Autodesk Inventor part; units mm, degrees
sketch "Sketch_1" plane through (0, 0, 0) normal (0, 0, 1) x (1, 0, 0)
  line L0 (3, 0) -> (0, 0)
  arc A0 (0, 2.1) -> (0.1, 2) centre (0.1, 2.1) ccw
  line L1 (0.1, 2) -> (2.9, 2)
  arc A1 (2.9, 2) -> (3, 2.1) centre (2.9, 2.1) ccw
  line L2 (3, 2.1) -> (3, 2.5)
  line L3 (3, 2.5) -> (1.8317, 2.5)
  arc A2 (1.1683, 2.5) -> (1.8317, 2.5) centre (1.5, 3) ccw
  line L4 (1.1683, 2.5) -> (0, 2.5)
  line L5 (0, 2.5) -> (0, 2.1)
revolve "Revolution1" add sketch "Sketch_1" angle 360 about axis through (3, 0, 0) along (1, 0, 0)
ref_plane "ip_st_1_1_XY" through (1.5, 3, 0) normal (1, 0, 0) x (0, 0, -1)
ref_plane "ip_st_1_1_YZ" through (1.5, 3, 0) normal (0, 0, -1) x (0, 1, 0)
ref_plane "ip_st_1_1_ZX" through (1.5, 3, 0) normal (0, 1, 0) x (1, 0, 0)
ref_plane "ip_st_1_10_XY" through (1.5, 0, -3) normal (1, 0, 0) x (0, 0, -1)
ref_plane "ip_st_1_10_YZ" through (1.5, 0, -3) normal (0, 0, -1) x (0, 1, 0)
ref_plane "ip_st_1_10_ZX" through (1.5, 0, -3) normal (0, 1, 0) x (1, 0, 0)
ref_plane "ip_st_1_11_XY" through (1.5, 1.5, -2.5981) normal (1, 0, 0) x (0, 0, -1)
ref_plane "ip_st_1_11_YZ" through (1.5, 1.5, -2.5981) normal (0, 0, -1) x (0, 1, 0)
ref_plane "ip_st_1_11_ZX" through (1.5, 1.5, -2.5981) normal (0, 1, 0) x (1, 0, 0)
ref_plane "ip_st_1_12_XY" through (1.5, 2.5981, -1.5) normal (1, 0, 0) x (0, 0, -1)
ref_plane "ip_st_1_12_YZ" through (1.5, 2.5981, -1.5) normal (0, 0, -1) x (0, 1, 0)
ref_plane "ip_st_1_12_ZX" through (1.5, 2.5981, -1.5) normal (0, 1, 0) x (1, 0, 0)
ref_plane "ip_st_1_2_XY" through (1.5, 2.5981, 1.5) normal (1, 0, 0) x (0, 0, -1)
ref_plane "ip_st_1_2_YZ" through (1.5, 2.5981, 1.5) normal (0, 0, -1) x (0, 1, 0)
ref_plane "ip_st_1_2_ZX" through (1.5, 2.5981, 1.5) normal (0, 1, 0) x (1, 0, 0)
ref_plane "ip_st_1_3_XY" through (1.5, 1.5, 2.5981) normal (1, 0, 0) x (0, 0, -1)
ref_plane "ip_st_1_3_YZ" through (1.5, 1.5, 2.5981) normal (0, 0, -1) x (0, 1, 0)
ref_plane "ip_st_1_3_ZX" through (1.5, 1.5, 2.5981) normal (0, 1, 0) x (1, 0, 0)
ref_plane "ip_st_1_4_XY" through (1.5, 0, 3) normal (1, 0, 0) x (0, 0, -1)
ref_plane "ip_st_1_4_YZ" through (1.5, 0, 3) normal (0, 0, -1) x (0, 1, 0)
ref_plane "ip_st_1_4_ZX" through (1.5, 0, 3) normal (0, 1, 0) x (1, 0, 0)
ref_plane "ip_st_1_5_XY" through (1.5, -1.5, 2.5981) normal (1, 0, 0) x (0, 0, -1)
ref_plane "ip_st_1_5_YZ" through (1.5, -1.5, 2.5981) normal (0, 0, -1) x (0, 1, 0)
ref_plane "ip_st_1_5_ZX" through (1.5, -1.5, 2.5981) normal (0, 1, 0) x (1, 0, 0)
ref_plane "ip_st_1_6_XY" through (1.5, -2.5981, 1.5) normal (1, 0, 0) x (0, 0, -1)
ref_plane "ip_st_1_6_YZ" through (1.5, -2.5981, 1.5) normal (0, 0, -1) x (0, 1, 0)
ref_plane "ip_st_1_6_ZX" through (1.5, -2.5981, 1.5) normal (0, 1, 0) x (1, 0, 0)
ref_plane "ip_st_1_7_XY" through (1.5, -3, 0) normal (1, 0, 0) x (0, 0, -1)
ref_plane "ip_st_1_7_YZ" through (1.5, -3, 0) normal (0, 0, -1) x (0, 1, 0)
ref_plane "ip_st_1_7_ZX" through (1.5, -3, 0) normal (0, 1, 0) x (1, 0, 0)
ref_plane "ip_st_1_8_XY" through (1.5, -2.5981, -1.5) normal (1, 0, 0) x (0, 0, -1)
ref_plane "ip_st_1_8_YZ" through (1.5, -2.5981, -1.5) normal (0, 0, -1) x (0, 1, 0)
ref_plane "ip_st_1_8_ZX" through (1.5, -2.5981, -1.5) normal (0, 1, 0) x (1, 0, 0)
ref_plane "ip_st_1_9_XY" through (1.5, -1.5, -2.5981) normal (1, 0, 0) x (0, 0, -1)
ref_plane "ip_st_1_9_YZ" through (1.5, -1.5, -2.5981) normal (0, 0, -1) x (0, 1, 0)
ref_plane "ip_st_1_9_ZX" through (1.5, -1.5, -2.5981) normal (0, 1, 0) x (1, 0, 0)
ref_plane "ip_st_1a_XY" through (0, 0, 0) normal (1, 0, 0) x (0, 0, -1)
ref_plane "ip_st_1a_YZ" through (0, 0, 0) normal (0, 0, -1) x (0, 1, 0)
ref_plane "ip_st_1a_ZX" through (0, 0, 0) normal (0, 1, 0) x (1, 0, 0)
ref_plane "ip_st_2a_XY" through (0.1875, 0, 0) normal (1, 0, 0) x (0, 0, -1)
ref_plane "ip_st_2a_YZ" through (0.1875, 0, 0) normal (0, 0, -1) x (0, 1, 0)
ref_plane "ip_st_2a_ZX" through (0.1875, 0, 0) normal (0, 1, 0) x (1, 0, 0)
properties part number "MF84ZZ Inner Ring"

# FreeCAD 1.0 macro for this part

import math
import FreeCAD as App
import Part
import Sketcher

doc = App.newDocument("Part")
body = doc.addObject("PartDesign::Body", "Body")

# Sketch on XY plane
sketch1 = body.newObject("Sketcher::SketchObject", "Sketch")
sketch1.AttachmentSupport = (doc.getObject("XY_Plane"), [""])
sketch1.MapMode = "FlatFace"
sketch1.addGeometry([
    Part.LineSegment(App.Vector(0, 2.5, 0), App.Vector(0, 2.1, 0)),  # 0
    Part.ArcOfCircle(Part.Circle(App.Vector(0.1, 2.1, 0), App.Vector(0, 0, 1), 0.1), math.radians(180), math.radians(270)),  # 1
    Part.LineSegment(App.Vector(0.1, 2, 0), App.Vector(2.9, 2, 0)),  # 2
    Part.ArcOfCircle(Part.Circle(App.Vector(2.9, 2.1, 0), App.Vector(0, 0, 1), 0.1), math.radians(-90), math.radians(0)),  # 3
    Part.LineSegment(App.Vector(3, 2.1, 0), App.Vector(3, 2.5, 0)),  # 4
    Part.LineSegment(App.Vector(3, 2.5, 0), App.Vector(1.83, 2.5, 0)),  # 5
    Part.ArcOfCircle(Part.Circle(App.Vector(1.5, 3, 0), App.Vector(0, 0, 1), 0.6), math.radians(-124), math.radians(-56)),  # 6
    Part.LineSegment(App.Vector(1.17, 2.5, 0), App.Vector(0, 2.5, 0)),  # 7
], False)
sketch1.addConstraint([
    Sketcher.Constraint("Tangent", 0, 2, 1, 1),
    Sketcher.Constraint("Tangent", 1, 2, 2, 1),
    Sketcher.Constraint("Tangent", 2, 2, 3, 1),
    Sketcher.Constraint("Tangent", 3, 2, 4, 1),
    Sketcher.Constraint("Coincident", 4, 2, 5, 1),
    Sketcher.Constraint("Coincident", 5, 2, 6, 2),
    Sketcher.Constraint("Coincident", 6, 1, 7, 1),
    Sketcher.Constraint("Coincident", 7, 2, 0, 1),
    Sketcher.Constraint("Vertical", 0),
    Sketcher.Constraint("Horizontal", 2),
    Sketcher.Constraint("Vertical", 4),
    Sketcher.Constraint("Horizontal", 5),
    Sketcher.Constraint("Horizontal", 7),
    Sketcher.Constraint("Equal", 1, 3),
    Sketcher.Constraint("PointOnObject", 0, 2, -2),
    Sketcher.Constraint("Horizontal", 5, 2, 6, 1),
    Sketcher.Constraint("Equal", 5, 7),
    Sketcher.Constraint("Radius", 1, 0.1),
    Sketcher.Constraint("Radius", 6, 0.6),
    Sketcher.Constraint("DistanceX", 2, 1, 2, 2, 2.8),
    Sketcher.Constraint("DistanceY", 0, 2, 0, 1, 0.4),
    Sketcher.Constraint("DistanceY", -1, 1, 6, 3, 3.0),
    Sketcher.Constraint("DistanceY", -1, 1, 1, 2, 2.0),
])
revolution = body.newObject("PartDesign::Revolution", "Revolution")
revolution.Profile = sketch1
revolution.ReferenceAxis = (sketch1, ["H_Axis"])
revolution.Angle = 360

doc.recompute()
